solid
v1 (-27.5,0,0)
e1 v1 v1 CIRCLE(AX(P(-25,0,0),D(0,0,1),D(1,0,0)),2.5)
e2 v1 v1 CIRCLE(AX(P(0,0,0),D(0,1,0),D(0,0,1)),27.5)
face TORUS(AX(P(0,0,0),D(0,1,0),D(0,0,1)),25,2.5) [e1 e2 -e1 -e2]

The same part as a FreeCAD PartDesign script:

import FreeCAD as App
import Part
import Sketcher
from FreeCAD import Vector

doc = App.newDocument("Part")
body = doc.addObject("PartDesign::Body", "Body")

# Sketch on XY plane
sketch1 = body.newObject("Sketcher::SketchObject", "Sketch")
sketch1.AttachmentSupport = (doc.getObject("XY_Plane"), [""])
sketch1.MapMode = "FlatFace"
sketch1.addGeometry(Part.Circle(Vector(-25, 0, 0), Vector(0, 0, 1), 2.5), False)
sketch1.addConstraint([
    Sketcher.Constraint("PointOnObject", 0, 3, -1),
    Sketcher.Constraint("Diameter", 0, 5.0),
    Sketcher.Constraint("DistanceX", 0, 3, -1, 1, 25.0),
])

# Sketch on XZ plane
sketch2 = body.newObject("Sketcher::SketchObject", "Sketch001")
sketch2.AttachmentSupport = (doc.getObject("XZ_Plane"), [""])
sketch2.MapMode = "FlatFace"
sketch2.addGeometry(Part.Circle(Vector(0, 0, 0), Vector(0, 0, 1), 25), False)
sketch2.addConstraint([
    Sketcher.Constraint("Coincident", 0, 3, -1, 1),
    Sketcher.Constraint("Diameter", 0, 50.0),
])
doc.recompute()

additivepipe = body.newObject("PartDesign::AdditivePipe", "AdditivePipe")
additivepipe.Profile = sketch1
additivepipe.Spine = (sketch2, ["Edge1"])

doc.recompute()
